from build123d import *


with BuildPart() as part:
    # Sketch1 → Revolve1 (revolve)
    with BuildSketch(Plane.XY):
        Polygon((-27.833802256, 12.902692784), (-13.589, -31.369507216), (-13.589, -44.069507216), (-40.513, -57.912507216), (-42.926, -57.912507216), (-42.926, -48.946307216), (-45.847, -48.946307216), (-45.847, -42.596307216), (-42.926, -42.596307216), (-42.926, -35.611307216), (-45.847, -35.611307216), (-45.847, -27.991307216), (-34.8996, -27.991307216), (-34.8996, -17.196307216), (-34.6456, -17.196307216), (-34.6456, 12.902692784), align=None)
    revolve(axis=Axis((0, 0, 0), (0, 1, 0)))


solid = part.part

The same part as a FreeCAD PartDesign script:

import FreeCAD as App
import Part
import Sketcher
from FreeCAD import Vector
Q = App.Units.Quantity

doc = App.newDocument("Part")
body = doc.addObject("PartDesign::Body", "Body")

sketch1 = body.newObject("Sketcher::SketchObject", "Sketch")
sketch1.AttachmentSupport = (doc.getObject("XY_Plane"), [""])
sketch1.MapMode = "FlatFace"
sketch1.addGeometry([
    Part.LineSegment(Vector(-13.59, -31.37, 0), Vector(-27.83, 12.9, 0)),
    Part.LineSegment(Vector(-27.83, 12.9, 0), Vector(-34.65, 12.9, 0)),
    Part.LineSegment(Vector(-34.65, 12.9, 0), Vector(-34.65, -17.2, 0)),
    Part.LineSegment(Vector(-34.65, -17.2, 0), Vector(-34.9, -17.2, 0)),
    Part.LineSegment(Vector(-34.9, -17.2, 0), Vector(-34.9, -27.99, 0)),
    Part.LineSegment(Vector(-34.9, -27.99, 0), Vector(-45.85, -27.99, 0)),
    Part.LineSegment(Vector(-45.85, -27.99, 0), Vector(-45.85, -35.61, 0)),
    Part.LineSegment(Vector(-45.85, -35.61, 0), Vector(-42.93, -35.61, 0)),
    Part.LineSegment(Vector(-42.93, -35.61, 0), Vector(-42.93, -42.6, 0)),
    Part.LineSegment(Vector(-42.93, -42.6, 0), Vector(-45.85, -42.6, 0)),
    Part.LineSegment(Vector(-45.85, -42.6, 0), Vector(-45.85, -48.95, 0)),
    Part.LineSegment(Vector(-45.85, -48.95, 0), Vector(-42.93, -48.95, 0)),
    Part.LineSegment(Vector(-42.93, -48.95, 0), Vector(-42.93, -57.91, 0)),
    Part.LineSegment(Vector(-42.93, -57.91, 0), Vector(-40.51, -57.91, 0)),
    Part.LineSegment(Vector(-40.51, -57.91, 0), Vector(-13.59, -44.07, 0)),
    Part.LineSegment(Vector(-13.59, -44.07, 0), Vector(-13.59, -31.37, 0)),
], False)
sketch1.addConstraint([
    Sketcher.Constraint("Coincident", 0, 2, 1, 1),
    Sketcher.Constraint("Coincident", 1, 2, 2, 1),
    Sketcher.Constraint("Coincident", 2, 2, 3, 1),
    Sketcher.Constraint("Coincident", 3, 2, 4, 1),
    Sketcher.Constraint("Coincident", 4, 2, 5, 1),
    Sketcher.Constraint("Coincident", 5, 2, 6, 1),
    Sketcher.Constraint("Coincident", 6, 2, 7, 1),
    Sketcher.Constraint("Coincident", 7, 2, 8, 1),
    Sketcher.Constraint("Coincident", 8, 2, 9, 1),
    Sketcher.Constraint("Coincident", 9, 2, 10, 1),
    Sketcher.Constraint("Coincident", 10, 2, 11, 1),
    Sketcher.Constraint("Coincident", 11, 2, 12, 1),
    Sketcher.Constraint("Coincident", 12, 2, 13, 1),
    Sketcher.Constraint("Coincident", 13, 2, 14, 1),
    Sketcher.Constraint("Coincident", 14, 2, 15, 1),
    Sketcher.Constraint("Coincident", 15, 2, 0, 1),
    Sketcher.Constraint("Horizontal", 1),
    Sketcher.Constraint("Vertical", 2),
    Sketcher.Constraint("Horizontal", 3),
    Sketcher.Constraint("Vertical", 4),
    Sketcher.Constraint("Horizontal", 5),
    Sketcher.Constraint("Vertical", 6),
    Sketcher.Constraint("Horizontal", 7),
    Sketcher.Constraint("Vertical", 8),
    Sketcher.Constraint("Horizontal", 9),
    Sketcher.Constraint("Vertical", 10),
    Sketcher.Constraint("Horizontal", 11),
    Sketcher.Constraint("Vertical", 12),
    Sketcher.Constraint("Horizontal", 13),
    Sketcher.Constraint("Vertical", 15),
    Sketcher.Constraint("Vertical", 6, 2, 9, 2),
    Sketcher.Constraint("Vertical", 8, 2, 11, 2),
    Sketcher.Constraint("DistanceY", 6, 2, 6, 1, Q("0.3 in")),
    Sketcher.Constraint("DistanceY", 15, 1, 15, 2, Q("0.5 in")),
    Sketcher.Constraint("DistanceY", 8, 2, 3, 2, Q("1 in")),
    Sketcher.Constraint("DistanceX", 3, 2, 3, 1, Q("0.01 in")),
    Sketcher.Constraint("DistanceY", 10, 2, 10, 1, Q("0.25 in")),
    Sketcher.Constraint("DistanceX", 5, 2, 5, 1, Q("0.431 in")),
    Sketcher.Constraint("DistanceX", 7, 1, 7, 2, Q("0.115 in")),
    Sketcher.Constraint("DistanceX", 13, 1, 13, 2, Q("0.095 in")),
    Sketcher.Constraint("DistanceY", 2, 2, 2, 1, Q("1.185 in")),
    Sketcher.Constraint("DistanceY", 4, 2, 4, 1, Q("0.425 in")),
    Sketcher.Constraint("DistanceY", 12, 2, 12, 1, Q("0.353 in")),
    Sketcher.Constraint("DistanceX", 7, 2, -1, 1, Q("1.69 in")),
    Sketcher.Constraint("Angle", 14, Q("27.210005 deg")),
    Sketcher.Constraint("DistanceX", 13, 2, 14, 2, Q("1.06 in")),
    Sketcher.Constraint("Distance", 0, Q("46.507441 mm")),
    Sketcher.Constraint("DistanceY", -1, 1, 0, 2, Q("12.902693 mm")),
])
revolution = body.newObject("PartDesign::Revolution", "Revolution")
revolution.Profile = sketch1
revolution.ReferenceAxis = (sketch1, ["V_Axis"])
revolution.Angle = 360

doc.recompute()
